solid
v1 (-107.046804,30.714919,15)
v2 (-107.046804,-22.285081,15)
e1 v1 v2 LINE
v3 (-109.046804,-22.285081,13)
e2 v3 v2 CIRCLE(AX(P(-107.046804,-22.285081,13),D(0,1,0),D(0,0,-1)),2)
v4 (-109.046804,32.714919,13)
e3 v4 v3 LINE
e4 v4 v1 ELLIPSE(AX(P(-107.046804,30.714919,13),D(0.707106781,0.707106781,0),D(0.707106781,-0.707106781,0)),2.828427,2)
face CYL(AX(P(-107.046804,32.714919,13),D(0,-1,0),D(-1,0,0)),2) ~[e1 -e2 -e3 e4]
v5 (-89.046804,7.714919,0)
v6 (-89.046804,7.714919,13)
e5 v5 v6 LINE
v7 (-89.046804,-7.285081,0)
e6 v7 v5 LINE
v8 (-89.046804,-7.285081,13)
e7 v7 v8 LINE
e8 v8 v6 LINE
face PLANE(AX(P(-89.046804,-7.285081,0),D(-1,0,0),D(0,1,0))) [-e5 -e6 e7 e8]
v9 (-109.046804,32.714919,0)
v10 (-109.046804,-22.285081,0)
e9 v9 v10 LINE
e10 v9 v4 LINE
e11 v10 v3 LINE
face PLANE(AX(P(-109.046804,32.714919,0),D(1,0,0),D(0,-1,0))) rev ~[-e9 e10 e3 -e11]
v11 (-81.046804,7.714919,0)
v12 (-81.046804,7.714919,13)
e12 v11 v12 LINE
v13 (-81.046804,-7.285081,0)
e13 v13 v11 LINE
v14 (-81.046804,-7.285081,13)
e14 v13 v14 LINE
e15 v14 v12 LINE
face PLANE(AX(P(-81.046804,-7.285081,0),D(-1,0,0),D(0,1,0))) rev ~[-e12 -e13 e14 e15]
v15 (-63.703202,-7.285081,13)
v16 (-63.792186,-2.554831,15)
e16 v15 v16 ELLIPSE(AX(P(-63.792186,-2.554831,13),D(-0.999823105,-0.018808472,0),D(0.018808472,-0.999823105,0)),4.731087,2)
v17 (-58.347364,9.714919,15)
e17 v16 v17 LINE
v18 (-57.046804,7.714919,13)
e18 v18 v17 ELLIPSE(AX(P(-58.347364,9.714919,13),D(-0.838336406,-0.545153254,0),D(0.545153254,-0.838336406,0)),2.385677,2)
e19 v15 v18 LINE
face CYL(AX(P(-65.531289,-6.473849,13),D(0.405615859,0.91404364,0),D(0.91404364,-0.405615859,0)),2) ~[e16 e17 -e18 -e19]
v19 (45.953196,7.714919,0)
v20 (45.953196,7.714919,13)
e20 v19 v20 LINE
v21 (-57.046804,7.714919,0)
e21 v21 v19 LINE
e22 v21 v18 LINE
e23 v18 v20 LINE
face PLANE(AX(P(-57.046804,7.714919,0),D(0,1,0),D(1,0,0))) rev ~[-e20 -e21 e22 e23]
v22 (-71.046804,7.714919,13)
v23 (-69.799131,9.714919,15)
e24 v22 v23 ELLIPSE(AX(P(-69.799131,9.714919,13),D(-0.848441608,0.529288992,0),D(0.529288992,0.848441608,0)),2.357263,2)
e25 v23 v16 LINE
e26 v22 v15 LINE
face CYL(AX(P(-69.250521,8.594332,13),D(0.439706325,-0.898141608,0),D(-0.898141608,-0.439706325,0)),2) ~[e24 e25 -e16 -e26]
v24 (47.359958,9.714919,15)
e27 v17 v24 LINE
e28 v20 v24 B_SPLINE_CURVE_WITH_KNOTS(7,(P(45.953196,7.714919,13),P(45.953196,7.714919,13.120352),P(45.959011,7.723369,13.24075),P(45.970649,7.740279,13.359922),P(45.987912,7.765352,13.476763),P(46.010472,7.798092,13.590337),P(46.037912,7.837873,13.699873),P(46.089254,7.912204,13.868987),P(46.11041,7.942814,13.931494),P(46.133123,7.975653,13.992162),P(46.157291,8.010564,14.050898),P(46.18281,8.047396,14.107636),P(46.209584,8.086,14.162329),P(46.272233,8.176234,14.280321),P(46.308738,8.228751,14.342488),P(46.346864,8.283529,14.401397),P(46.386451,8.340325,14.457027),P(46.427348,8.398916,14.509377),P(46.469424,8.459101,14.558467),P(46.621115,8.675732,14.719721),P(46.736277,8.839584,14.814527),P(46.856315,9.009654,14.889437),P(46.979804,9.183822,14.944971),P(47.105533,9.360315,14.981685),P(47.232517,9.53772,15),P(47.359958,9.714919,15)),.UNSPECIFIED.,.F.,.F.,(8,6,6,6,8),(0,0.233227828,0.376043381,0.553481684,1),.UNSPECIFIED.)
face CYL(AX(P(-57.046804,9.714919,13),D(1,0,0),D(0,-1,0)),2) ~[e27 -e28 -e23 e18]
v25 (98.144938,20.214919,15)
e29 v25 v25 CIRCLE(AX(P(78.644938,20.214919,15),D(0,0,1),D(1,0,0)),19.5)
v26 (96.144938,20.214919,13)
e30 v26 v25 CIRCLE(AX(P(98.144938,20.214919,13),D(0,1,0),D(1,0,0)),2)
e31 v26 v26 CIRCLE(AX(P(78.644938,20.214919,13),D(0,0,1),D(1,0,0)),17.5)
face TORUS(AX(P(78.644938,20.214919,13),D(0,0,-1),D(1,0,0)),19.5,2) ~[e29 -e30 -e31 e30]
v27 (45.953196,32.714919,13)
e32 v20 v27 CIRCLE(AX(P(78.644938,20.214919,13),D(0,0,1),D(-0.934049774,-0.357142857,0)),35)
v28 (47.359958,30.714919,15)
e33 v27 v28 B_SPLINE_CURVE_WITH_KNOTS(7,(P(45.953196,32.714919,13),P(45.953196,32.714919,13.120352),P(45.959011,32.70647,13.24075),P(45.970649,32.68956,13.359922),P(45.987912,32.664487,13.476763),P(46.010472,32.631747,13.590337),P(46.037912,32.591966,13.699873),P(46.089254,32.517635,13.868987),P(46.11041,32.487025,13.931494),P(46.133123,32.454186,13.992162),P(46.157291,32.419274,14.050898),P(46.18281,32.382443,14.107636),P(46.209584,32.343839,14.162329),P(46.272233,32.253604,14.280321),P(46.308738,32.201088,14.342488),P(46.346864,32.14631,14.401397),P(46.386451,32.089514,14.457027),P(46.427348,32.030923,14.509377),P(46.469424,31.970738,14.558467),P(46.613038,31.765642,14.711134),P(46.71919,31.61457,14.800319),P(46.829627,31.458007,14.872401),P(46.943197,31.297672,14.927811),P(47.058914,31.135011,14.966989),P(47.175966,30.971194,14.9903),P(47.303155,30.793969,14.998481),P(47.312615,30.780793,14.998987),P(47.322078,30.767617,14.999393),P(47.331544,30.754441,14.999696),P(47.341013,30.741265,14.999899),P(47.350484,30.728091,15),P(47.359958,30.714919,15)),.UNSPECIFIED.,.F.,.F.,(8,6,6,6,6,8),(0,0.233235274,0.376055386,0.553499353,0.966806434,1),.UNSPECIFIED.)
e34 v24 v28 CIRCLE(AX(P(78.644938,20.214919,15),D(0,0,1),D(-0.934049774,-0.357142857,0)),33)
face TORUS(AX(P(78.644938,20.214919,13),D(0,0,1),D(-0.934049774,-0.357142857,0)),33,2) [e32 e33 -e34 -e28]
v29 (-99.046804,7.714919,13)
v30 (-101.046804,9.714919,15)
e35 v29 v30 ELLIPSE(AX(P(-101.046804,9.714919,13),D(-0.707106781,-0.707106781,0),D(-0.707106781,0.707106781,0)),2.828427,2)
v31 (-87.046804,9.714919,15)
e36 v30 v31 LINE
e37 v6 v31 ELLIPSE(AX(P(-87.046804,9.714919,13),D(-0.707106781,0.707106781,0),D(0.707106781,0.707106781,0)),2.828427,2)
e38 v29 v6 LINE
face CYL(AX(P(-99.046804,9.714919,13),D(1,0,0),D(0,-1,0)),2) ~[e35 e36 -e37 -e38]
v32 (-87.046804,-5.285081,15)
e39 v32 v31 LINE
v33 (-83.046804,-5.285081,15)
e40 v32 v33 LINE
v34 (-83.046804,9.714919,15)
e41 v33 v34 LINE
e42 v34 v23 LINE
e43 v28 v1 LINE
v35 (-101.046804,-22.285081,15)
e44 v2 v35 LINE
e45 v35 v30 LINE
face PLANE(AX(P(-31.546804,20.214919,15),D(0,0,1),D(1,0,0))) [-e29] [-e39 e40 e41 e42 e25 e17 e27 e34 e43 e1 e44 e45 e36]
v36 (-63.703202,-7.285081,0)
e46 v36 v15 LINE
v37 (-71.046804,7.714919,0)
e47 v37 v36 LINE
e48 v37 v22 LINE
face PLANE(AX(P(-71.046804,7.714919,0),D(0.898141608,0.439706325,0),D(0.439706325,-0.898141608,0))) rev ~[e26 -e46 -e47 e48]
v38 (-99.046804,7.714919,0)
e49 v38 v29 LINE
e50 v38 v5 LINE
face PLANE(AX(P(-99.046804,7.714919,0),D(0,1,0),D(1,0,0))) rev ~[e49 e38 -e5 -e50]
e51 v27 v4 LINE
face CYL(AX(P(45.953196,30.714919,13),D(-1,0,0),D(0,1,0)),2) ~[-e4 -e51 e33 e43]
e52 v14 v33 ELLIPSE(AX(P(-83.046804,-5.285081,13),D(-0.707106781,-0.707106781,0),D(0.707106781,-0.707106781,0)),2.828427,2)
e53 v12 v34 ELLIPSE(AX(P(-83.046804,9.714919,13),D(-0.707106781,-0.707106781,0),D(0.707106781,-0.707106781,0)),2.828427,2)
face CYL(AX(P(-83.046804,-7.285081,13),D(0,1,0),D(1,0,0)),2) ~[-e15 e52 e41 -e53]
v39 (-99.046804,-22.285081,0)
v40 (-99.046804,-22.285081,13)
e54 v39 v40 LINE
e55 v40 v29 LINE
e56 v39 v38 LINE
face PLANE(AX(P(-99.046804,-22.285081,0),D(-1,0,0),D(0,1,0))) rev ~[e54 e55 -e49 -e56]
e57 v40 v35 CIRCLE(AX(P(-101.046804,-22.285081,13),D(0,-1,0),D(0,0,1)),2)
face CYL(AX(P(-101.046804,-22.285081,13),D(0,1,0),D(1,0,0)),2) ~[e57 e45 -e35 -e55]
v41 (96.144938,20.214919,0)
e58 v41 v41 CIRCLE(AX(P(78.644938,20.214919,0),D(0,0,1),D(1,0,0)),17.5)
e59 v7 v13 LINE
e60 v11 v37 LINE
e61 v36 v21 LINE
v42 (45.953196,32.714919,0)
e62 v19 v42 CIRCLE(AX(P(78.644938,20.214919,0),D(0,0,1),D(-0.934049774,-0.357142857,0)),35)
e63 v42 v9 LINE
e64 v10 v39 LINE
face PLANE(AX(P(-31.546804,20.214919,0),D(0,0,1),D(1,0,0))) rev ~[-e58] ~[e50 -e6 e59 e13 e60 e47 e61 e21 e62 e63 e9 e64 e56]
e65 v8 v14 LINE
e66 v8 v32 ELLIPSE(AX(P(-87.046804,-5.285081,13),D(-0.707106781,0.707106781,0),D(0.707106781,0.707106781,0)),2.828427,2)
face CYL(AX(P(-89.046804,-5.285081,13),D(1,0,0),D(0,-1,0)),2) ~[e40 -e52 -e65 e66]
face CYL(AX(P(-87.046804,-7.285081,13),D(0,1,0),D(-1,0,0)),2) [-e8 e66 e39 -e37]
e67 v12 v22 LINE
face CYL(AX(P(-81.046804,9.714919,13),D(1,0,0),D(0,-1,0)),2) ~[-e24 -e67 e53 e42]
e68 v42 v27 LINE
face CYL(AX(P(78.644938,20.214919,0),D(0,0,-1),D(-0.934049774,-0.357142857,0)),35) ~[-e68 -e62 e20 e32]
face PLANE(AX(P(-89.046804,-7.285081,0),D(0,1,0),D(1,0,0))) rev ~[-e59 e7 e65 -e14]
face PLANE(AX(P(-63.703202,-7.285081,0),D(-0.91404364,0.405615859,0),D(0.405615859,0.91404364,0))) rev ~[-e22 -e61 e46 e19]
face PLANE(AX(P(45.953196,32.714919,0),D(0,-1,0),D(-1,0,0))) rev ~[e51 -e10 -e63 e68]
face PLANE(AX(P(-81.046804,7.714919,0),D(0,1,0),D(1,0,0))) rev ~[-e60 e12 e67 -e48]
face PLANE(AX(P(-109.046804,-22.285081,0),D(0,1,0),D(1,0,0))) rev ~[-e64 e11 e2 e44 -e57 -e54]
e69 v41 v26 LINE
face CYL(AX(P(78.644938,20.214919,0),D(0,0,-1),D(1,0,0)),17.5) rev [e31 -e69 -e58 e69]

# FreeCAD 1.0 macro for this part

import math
import FreeCAD as App
import Part
import Sketcher
from FreeCAD import Vector


def edges_at(feature, points):
    """Names of the edges that pass closest to the given points."""
    edges = feature.Shape.Edges
    near = lambda p: min(range(len(edges)), key=lambda i: edges[i].distToShape(Part.Vertex(*p))[0])
    return sorted({f"Edge{near(p) + 1}" for p in points})

doc = App.newDocument("Part")
body = doc.addObject("PartDesign::Body", "Body")

# Sketch on XY plane
sketch1 = body.newObject("Sketcher::SketchObject", "Sketch")
sketch1.AttachmentSupport = (doc.getObject("XY_Plane"), [""])
sketch1.MapMode = "FlatFace"
sketch1.addGeometry([
    Part.LineSegment(Vector(-109.046804, 32.714919, 0), Vector(-109.046804, -22.285081, 0)),  # 0
    Part.LineSegment(Vector(-109.046804, -22.285081, 0), Vector(-99.046804, -22.285081, 0)),  # 1
    Part.LineSegment(Vector(-99.046804, -22.285081, 0), Vector(-99.046804, 7.714919, 0)),  # 2
    Part.LineSegment(Vector(-99.046804, 7.714919, 0), Vector(-89.046804, 7.714919, 0)),  # 3
    Part.LineSegment(Vector(-89.046804, 7.714919, 0), Vector(-89.046804, -7.285081, 0)),  # 4
    Part.LineSegment(Vector(-89.046804, -7.285081, 0), Vector(-81.046804, -7.285081, 0)),  # 5
    Part.LineSegment(Vector(-81.046804, -7.285081, 0), Vector(-81.046804, 7.714919, 0)),  # 6
    Part.LineSegment(Vector(-81.046804, 7.714919, 0), Vector(-71.046804, 7.714919, 0)),  # 7
    Part.LineSegment(Vector(-71.046804, 7.714919, 0), Vector(-63.703202, -7.285081, 0)),  # 8
    Part.LineSegment(Vector(-63.703202, -7.285081, 0), Vector(-57.046804, 7.714919, 0)),  # 9
    Part.LineSegment(Vector(-57.046804, 7.714919, 0), Vector(45.953196, 7.714919, 0)),  # 10
    Part.ArcOfCircle(Part.Circle(Vector(78.644938, 20.214919, 0), Vector(0, 0, 1), 35), math.radians(-159.075168), math.radians(159.075168)),  # 11
    Part.LineSegment(Vector(45.953196, 32.714919, 0), Vector(-109.046804, 32.714919, 0)),  # 12
    Part.Circle(Vector(78.644938, 20.214919, 0), Vector(0, 0, 1), 17.5),  # 13
], False)
sketch1.addConstraint([
    Sketcher.Constraint("Coincident", 0, 2, 1, 1),
    Sketcher.Constraint("Coincident", 1, 2, 2, 1),
    Sketcher.Constraint("Coincident", 2, 2, 3, 1),
    Sketcher.Constraint("Coincident", 3, 2, 4, 1),
    Sketcher.Constraint("Coincident", 4, 2, 5, 1),
    Sketcher.Constraint("Coincident", 5, 2, 6, 1),
    Sketcher.Constraint("Coincident", 6, 2, 7, 1),
    Sketcher.Constraint("Coincident", 7, 2, 8, 1),
    Sketcher.Constraint("Coincident", 8, 2, 9, 1),
    Sketcher.Constraint("Coincident", 9, 2, 10, 1),
    Sketcher.Constraint("Coincident", 10, 2, 11, 1),
    Sketcher.Constraint("Coincident", 11, 2, 12, 1),
    Sketcher.Constraint("Coincident", 12, 2, 0, 1),
    Sketcher.Constraint("Vertical", 0),
    Sketcher.Constraint("Horizontal", 1),
    Sketcher.Constraint("Vertical", 2),
    Sketcher.Constraint("Horizontal", 3),
    Sketcher.Constraint("Vertical", 4),
    Sketcher.Constraint("Horizontal", 5),
    Sketcher.Constraint("Vertical", 6),
    Sketcher.Constraint("Horizontal", 7),
    Sketcher.Constraint("Horizontal", 10),
    Sketcher.Constraint("Horizontal", 12),
    Sketcher.Constraint("Coincident", 13, 3, 11, 3),
    Sketcher.Constraint("Horizontal", 3, 2, 6, 2),
    Sketcher.Constraint("Horizontal", 5, 2, 8, 2),
    Sketcher.Constraint("Horizontal", 7, 2, 9, 2),
    Sketcher.Constraint("Vertical", 10, 2, 11, 2),
    Sketcher.Constraint("Equal", 1, 3),
    Sketcher.Constraint("Equal", 3, 7),
    Sketcher.Constraint("Diameter", 13, 35.0),
    Sketcher.Constraint("Radius", 11, 35.0),
    Sketcher.Constraint("DistanceX", 1, 1, 1, 2, 10.0),
    Sketcher.Constraint("DistanceX", 5, 1, 5, 2, 8.0),
    Sketcher.Constraint("DistanceX", 10, 1, 10, 2, 103.0),
    Sketcher.Constraint("DistanceX", 12, 2, 12, 1, 155.0),
    Sketcher.Constraint("DistanceY", 0, 2, 0, 1, 55.0),
    Sketcher.Constraint("DistanceY", 2, 1, 2, 2, 30.0),
    Sketcher.Constraint("DistanceY", 4, 2, 4, 1, 15.0),
    Sketcher.Constraint("DistanceX", 8, 2, -1, 1, 63.703202),
    Sketcher.Constraint("DistanceY", -1, 1, 11, 3, 20.214919),
    Sketcher.Constraint("Distance", 8, 16.701153),
])
pad1 = body.newObject("PartDesign::Pad", "Pad")
pad1.Profile = sketch1
pad1.Length = 15
doc.recompute()

fillet = body.newObject("PartDesign::Fillet", "Fillet")
fillet.Base = (pad1, edges_at(pad1, [
    (-109.047, 5.215, 15),
    (-31.547, 32.715, 15),
    (-99.047, -7.285, 15),
    (-94.047, 7.715, 15),
    (-85.047, -7.285, 15),
    (-76.047, 7.715, 15),
    (-67.375, 0.215, 15),
    (-5.547, 7.715, 15),
    (113.645, 20.215, 15),
    (61.145, 20.215, 15),
    (-60.375, 0.215, 15),
    (-81.047, 0.215, 15),
    (-89.047, 0.215, 15),
]))
fillet.Radius = 2

doc.recompute()
